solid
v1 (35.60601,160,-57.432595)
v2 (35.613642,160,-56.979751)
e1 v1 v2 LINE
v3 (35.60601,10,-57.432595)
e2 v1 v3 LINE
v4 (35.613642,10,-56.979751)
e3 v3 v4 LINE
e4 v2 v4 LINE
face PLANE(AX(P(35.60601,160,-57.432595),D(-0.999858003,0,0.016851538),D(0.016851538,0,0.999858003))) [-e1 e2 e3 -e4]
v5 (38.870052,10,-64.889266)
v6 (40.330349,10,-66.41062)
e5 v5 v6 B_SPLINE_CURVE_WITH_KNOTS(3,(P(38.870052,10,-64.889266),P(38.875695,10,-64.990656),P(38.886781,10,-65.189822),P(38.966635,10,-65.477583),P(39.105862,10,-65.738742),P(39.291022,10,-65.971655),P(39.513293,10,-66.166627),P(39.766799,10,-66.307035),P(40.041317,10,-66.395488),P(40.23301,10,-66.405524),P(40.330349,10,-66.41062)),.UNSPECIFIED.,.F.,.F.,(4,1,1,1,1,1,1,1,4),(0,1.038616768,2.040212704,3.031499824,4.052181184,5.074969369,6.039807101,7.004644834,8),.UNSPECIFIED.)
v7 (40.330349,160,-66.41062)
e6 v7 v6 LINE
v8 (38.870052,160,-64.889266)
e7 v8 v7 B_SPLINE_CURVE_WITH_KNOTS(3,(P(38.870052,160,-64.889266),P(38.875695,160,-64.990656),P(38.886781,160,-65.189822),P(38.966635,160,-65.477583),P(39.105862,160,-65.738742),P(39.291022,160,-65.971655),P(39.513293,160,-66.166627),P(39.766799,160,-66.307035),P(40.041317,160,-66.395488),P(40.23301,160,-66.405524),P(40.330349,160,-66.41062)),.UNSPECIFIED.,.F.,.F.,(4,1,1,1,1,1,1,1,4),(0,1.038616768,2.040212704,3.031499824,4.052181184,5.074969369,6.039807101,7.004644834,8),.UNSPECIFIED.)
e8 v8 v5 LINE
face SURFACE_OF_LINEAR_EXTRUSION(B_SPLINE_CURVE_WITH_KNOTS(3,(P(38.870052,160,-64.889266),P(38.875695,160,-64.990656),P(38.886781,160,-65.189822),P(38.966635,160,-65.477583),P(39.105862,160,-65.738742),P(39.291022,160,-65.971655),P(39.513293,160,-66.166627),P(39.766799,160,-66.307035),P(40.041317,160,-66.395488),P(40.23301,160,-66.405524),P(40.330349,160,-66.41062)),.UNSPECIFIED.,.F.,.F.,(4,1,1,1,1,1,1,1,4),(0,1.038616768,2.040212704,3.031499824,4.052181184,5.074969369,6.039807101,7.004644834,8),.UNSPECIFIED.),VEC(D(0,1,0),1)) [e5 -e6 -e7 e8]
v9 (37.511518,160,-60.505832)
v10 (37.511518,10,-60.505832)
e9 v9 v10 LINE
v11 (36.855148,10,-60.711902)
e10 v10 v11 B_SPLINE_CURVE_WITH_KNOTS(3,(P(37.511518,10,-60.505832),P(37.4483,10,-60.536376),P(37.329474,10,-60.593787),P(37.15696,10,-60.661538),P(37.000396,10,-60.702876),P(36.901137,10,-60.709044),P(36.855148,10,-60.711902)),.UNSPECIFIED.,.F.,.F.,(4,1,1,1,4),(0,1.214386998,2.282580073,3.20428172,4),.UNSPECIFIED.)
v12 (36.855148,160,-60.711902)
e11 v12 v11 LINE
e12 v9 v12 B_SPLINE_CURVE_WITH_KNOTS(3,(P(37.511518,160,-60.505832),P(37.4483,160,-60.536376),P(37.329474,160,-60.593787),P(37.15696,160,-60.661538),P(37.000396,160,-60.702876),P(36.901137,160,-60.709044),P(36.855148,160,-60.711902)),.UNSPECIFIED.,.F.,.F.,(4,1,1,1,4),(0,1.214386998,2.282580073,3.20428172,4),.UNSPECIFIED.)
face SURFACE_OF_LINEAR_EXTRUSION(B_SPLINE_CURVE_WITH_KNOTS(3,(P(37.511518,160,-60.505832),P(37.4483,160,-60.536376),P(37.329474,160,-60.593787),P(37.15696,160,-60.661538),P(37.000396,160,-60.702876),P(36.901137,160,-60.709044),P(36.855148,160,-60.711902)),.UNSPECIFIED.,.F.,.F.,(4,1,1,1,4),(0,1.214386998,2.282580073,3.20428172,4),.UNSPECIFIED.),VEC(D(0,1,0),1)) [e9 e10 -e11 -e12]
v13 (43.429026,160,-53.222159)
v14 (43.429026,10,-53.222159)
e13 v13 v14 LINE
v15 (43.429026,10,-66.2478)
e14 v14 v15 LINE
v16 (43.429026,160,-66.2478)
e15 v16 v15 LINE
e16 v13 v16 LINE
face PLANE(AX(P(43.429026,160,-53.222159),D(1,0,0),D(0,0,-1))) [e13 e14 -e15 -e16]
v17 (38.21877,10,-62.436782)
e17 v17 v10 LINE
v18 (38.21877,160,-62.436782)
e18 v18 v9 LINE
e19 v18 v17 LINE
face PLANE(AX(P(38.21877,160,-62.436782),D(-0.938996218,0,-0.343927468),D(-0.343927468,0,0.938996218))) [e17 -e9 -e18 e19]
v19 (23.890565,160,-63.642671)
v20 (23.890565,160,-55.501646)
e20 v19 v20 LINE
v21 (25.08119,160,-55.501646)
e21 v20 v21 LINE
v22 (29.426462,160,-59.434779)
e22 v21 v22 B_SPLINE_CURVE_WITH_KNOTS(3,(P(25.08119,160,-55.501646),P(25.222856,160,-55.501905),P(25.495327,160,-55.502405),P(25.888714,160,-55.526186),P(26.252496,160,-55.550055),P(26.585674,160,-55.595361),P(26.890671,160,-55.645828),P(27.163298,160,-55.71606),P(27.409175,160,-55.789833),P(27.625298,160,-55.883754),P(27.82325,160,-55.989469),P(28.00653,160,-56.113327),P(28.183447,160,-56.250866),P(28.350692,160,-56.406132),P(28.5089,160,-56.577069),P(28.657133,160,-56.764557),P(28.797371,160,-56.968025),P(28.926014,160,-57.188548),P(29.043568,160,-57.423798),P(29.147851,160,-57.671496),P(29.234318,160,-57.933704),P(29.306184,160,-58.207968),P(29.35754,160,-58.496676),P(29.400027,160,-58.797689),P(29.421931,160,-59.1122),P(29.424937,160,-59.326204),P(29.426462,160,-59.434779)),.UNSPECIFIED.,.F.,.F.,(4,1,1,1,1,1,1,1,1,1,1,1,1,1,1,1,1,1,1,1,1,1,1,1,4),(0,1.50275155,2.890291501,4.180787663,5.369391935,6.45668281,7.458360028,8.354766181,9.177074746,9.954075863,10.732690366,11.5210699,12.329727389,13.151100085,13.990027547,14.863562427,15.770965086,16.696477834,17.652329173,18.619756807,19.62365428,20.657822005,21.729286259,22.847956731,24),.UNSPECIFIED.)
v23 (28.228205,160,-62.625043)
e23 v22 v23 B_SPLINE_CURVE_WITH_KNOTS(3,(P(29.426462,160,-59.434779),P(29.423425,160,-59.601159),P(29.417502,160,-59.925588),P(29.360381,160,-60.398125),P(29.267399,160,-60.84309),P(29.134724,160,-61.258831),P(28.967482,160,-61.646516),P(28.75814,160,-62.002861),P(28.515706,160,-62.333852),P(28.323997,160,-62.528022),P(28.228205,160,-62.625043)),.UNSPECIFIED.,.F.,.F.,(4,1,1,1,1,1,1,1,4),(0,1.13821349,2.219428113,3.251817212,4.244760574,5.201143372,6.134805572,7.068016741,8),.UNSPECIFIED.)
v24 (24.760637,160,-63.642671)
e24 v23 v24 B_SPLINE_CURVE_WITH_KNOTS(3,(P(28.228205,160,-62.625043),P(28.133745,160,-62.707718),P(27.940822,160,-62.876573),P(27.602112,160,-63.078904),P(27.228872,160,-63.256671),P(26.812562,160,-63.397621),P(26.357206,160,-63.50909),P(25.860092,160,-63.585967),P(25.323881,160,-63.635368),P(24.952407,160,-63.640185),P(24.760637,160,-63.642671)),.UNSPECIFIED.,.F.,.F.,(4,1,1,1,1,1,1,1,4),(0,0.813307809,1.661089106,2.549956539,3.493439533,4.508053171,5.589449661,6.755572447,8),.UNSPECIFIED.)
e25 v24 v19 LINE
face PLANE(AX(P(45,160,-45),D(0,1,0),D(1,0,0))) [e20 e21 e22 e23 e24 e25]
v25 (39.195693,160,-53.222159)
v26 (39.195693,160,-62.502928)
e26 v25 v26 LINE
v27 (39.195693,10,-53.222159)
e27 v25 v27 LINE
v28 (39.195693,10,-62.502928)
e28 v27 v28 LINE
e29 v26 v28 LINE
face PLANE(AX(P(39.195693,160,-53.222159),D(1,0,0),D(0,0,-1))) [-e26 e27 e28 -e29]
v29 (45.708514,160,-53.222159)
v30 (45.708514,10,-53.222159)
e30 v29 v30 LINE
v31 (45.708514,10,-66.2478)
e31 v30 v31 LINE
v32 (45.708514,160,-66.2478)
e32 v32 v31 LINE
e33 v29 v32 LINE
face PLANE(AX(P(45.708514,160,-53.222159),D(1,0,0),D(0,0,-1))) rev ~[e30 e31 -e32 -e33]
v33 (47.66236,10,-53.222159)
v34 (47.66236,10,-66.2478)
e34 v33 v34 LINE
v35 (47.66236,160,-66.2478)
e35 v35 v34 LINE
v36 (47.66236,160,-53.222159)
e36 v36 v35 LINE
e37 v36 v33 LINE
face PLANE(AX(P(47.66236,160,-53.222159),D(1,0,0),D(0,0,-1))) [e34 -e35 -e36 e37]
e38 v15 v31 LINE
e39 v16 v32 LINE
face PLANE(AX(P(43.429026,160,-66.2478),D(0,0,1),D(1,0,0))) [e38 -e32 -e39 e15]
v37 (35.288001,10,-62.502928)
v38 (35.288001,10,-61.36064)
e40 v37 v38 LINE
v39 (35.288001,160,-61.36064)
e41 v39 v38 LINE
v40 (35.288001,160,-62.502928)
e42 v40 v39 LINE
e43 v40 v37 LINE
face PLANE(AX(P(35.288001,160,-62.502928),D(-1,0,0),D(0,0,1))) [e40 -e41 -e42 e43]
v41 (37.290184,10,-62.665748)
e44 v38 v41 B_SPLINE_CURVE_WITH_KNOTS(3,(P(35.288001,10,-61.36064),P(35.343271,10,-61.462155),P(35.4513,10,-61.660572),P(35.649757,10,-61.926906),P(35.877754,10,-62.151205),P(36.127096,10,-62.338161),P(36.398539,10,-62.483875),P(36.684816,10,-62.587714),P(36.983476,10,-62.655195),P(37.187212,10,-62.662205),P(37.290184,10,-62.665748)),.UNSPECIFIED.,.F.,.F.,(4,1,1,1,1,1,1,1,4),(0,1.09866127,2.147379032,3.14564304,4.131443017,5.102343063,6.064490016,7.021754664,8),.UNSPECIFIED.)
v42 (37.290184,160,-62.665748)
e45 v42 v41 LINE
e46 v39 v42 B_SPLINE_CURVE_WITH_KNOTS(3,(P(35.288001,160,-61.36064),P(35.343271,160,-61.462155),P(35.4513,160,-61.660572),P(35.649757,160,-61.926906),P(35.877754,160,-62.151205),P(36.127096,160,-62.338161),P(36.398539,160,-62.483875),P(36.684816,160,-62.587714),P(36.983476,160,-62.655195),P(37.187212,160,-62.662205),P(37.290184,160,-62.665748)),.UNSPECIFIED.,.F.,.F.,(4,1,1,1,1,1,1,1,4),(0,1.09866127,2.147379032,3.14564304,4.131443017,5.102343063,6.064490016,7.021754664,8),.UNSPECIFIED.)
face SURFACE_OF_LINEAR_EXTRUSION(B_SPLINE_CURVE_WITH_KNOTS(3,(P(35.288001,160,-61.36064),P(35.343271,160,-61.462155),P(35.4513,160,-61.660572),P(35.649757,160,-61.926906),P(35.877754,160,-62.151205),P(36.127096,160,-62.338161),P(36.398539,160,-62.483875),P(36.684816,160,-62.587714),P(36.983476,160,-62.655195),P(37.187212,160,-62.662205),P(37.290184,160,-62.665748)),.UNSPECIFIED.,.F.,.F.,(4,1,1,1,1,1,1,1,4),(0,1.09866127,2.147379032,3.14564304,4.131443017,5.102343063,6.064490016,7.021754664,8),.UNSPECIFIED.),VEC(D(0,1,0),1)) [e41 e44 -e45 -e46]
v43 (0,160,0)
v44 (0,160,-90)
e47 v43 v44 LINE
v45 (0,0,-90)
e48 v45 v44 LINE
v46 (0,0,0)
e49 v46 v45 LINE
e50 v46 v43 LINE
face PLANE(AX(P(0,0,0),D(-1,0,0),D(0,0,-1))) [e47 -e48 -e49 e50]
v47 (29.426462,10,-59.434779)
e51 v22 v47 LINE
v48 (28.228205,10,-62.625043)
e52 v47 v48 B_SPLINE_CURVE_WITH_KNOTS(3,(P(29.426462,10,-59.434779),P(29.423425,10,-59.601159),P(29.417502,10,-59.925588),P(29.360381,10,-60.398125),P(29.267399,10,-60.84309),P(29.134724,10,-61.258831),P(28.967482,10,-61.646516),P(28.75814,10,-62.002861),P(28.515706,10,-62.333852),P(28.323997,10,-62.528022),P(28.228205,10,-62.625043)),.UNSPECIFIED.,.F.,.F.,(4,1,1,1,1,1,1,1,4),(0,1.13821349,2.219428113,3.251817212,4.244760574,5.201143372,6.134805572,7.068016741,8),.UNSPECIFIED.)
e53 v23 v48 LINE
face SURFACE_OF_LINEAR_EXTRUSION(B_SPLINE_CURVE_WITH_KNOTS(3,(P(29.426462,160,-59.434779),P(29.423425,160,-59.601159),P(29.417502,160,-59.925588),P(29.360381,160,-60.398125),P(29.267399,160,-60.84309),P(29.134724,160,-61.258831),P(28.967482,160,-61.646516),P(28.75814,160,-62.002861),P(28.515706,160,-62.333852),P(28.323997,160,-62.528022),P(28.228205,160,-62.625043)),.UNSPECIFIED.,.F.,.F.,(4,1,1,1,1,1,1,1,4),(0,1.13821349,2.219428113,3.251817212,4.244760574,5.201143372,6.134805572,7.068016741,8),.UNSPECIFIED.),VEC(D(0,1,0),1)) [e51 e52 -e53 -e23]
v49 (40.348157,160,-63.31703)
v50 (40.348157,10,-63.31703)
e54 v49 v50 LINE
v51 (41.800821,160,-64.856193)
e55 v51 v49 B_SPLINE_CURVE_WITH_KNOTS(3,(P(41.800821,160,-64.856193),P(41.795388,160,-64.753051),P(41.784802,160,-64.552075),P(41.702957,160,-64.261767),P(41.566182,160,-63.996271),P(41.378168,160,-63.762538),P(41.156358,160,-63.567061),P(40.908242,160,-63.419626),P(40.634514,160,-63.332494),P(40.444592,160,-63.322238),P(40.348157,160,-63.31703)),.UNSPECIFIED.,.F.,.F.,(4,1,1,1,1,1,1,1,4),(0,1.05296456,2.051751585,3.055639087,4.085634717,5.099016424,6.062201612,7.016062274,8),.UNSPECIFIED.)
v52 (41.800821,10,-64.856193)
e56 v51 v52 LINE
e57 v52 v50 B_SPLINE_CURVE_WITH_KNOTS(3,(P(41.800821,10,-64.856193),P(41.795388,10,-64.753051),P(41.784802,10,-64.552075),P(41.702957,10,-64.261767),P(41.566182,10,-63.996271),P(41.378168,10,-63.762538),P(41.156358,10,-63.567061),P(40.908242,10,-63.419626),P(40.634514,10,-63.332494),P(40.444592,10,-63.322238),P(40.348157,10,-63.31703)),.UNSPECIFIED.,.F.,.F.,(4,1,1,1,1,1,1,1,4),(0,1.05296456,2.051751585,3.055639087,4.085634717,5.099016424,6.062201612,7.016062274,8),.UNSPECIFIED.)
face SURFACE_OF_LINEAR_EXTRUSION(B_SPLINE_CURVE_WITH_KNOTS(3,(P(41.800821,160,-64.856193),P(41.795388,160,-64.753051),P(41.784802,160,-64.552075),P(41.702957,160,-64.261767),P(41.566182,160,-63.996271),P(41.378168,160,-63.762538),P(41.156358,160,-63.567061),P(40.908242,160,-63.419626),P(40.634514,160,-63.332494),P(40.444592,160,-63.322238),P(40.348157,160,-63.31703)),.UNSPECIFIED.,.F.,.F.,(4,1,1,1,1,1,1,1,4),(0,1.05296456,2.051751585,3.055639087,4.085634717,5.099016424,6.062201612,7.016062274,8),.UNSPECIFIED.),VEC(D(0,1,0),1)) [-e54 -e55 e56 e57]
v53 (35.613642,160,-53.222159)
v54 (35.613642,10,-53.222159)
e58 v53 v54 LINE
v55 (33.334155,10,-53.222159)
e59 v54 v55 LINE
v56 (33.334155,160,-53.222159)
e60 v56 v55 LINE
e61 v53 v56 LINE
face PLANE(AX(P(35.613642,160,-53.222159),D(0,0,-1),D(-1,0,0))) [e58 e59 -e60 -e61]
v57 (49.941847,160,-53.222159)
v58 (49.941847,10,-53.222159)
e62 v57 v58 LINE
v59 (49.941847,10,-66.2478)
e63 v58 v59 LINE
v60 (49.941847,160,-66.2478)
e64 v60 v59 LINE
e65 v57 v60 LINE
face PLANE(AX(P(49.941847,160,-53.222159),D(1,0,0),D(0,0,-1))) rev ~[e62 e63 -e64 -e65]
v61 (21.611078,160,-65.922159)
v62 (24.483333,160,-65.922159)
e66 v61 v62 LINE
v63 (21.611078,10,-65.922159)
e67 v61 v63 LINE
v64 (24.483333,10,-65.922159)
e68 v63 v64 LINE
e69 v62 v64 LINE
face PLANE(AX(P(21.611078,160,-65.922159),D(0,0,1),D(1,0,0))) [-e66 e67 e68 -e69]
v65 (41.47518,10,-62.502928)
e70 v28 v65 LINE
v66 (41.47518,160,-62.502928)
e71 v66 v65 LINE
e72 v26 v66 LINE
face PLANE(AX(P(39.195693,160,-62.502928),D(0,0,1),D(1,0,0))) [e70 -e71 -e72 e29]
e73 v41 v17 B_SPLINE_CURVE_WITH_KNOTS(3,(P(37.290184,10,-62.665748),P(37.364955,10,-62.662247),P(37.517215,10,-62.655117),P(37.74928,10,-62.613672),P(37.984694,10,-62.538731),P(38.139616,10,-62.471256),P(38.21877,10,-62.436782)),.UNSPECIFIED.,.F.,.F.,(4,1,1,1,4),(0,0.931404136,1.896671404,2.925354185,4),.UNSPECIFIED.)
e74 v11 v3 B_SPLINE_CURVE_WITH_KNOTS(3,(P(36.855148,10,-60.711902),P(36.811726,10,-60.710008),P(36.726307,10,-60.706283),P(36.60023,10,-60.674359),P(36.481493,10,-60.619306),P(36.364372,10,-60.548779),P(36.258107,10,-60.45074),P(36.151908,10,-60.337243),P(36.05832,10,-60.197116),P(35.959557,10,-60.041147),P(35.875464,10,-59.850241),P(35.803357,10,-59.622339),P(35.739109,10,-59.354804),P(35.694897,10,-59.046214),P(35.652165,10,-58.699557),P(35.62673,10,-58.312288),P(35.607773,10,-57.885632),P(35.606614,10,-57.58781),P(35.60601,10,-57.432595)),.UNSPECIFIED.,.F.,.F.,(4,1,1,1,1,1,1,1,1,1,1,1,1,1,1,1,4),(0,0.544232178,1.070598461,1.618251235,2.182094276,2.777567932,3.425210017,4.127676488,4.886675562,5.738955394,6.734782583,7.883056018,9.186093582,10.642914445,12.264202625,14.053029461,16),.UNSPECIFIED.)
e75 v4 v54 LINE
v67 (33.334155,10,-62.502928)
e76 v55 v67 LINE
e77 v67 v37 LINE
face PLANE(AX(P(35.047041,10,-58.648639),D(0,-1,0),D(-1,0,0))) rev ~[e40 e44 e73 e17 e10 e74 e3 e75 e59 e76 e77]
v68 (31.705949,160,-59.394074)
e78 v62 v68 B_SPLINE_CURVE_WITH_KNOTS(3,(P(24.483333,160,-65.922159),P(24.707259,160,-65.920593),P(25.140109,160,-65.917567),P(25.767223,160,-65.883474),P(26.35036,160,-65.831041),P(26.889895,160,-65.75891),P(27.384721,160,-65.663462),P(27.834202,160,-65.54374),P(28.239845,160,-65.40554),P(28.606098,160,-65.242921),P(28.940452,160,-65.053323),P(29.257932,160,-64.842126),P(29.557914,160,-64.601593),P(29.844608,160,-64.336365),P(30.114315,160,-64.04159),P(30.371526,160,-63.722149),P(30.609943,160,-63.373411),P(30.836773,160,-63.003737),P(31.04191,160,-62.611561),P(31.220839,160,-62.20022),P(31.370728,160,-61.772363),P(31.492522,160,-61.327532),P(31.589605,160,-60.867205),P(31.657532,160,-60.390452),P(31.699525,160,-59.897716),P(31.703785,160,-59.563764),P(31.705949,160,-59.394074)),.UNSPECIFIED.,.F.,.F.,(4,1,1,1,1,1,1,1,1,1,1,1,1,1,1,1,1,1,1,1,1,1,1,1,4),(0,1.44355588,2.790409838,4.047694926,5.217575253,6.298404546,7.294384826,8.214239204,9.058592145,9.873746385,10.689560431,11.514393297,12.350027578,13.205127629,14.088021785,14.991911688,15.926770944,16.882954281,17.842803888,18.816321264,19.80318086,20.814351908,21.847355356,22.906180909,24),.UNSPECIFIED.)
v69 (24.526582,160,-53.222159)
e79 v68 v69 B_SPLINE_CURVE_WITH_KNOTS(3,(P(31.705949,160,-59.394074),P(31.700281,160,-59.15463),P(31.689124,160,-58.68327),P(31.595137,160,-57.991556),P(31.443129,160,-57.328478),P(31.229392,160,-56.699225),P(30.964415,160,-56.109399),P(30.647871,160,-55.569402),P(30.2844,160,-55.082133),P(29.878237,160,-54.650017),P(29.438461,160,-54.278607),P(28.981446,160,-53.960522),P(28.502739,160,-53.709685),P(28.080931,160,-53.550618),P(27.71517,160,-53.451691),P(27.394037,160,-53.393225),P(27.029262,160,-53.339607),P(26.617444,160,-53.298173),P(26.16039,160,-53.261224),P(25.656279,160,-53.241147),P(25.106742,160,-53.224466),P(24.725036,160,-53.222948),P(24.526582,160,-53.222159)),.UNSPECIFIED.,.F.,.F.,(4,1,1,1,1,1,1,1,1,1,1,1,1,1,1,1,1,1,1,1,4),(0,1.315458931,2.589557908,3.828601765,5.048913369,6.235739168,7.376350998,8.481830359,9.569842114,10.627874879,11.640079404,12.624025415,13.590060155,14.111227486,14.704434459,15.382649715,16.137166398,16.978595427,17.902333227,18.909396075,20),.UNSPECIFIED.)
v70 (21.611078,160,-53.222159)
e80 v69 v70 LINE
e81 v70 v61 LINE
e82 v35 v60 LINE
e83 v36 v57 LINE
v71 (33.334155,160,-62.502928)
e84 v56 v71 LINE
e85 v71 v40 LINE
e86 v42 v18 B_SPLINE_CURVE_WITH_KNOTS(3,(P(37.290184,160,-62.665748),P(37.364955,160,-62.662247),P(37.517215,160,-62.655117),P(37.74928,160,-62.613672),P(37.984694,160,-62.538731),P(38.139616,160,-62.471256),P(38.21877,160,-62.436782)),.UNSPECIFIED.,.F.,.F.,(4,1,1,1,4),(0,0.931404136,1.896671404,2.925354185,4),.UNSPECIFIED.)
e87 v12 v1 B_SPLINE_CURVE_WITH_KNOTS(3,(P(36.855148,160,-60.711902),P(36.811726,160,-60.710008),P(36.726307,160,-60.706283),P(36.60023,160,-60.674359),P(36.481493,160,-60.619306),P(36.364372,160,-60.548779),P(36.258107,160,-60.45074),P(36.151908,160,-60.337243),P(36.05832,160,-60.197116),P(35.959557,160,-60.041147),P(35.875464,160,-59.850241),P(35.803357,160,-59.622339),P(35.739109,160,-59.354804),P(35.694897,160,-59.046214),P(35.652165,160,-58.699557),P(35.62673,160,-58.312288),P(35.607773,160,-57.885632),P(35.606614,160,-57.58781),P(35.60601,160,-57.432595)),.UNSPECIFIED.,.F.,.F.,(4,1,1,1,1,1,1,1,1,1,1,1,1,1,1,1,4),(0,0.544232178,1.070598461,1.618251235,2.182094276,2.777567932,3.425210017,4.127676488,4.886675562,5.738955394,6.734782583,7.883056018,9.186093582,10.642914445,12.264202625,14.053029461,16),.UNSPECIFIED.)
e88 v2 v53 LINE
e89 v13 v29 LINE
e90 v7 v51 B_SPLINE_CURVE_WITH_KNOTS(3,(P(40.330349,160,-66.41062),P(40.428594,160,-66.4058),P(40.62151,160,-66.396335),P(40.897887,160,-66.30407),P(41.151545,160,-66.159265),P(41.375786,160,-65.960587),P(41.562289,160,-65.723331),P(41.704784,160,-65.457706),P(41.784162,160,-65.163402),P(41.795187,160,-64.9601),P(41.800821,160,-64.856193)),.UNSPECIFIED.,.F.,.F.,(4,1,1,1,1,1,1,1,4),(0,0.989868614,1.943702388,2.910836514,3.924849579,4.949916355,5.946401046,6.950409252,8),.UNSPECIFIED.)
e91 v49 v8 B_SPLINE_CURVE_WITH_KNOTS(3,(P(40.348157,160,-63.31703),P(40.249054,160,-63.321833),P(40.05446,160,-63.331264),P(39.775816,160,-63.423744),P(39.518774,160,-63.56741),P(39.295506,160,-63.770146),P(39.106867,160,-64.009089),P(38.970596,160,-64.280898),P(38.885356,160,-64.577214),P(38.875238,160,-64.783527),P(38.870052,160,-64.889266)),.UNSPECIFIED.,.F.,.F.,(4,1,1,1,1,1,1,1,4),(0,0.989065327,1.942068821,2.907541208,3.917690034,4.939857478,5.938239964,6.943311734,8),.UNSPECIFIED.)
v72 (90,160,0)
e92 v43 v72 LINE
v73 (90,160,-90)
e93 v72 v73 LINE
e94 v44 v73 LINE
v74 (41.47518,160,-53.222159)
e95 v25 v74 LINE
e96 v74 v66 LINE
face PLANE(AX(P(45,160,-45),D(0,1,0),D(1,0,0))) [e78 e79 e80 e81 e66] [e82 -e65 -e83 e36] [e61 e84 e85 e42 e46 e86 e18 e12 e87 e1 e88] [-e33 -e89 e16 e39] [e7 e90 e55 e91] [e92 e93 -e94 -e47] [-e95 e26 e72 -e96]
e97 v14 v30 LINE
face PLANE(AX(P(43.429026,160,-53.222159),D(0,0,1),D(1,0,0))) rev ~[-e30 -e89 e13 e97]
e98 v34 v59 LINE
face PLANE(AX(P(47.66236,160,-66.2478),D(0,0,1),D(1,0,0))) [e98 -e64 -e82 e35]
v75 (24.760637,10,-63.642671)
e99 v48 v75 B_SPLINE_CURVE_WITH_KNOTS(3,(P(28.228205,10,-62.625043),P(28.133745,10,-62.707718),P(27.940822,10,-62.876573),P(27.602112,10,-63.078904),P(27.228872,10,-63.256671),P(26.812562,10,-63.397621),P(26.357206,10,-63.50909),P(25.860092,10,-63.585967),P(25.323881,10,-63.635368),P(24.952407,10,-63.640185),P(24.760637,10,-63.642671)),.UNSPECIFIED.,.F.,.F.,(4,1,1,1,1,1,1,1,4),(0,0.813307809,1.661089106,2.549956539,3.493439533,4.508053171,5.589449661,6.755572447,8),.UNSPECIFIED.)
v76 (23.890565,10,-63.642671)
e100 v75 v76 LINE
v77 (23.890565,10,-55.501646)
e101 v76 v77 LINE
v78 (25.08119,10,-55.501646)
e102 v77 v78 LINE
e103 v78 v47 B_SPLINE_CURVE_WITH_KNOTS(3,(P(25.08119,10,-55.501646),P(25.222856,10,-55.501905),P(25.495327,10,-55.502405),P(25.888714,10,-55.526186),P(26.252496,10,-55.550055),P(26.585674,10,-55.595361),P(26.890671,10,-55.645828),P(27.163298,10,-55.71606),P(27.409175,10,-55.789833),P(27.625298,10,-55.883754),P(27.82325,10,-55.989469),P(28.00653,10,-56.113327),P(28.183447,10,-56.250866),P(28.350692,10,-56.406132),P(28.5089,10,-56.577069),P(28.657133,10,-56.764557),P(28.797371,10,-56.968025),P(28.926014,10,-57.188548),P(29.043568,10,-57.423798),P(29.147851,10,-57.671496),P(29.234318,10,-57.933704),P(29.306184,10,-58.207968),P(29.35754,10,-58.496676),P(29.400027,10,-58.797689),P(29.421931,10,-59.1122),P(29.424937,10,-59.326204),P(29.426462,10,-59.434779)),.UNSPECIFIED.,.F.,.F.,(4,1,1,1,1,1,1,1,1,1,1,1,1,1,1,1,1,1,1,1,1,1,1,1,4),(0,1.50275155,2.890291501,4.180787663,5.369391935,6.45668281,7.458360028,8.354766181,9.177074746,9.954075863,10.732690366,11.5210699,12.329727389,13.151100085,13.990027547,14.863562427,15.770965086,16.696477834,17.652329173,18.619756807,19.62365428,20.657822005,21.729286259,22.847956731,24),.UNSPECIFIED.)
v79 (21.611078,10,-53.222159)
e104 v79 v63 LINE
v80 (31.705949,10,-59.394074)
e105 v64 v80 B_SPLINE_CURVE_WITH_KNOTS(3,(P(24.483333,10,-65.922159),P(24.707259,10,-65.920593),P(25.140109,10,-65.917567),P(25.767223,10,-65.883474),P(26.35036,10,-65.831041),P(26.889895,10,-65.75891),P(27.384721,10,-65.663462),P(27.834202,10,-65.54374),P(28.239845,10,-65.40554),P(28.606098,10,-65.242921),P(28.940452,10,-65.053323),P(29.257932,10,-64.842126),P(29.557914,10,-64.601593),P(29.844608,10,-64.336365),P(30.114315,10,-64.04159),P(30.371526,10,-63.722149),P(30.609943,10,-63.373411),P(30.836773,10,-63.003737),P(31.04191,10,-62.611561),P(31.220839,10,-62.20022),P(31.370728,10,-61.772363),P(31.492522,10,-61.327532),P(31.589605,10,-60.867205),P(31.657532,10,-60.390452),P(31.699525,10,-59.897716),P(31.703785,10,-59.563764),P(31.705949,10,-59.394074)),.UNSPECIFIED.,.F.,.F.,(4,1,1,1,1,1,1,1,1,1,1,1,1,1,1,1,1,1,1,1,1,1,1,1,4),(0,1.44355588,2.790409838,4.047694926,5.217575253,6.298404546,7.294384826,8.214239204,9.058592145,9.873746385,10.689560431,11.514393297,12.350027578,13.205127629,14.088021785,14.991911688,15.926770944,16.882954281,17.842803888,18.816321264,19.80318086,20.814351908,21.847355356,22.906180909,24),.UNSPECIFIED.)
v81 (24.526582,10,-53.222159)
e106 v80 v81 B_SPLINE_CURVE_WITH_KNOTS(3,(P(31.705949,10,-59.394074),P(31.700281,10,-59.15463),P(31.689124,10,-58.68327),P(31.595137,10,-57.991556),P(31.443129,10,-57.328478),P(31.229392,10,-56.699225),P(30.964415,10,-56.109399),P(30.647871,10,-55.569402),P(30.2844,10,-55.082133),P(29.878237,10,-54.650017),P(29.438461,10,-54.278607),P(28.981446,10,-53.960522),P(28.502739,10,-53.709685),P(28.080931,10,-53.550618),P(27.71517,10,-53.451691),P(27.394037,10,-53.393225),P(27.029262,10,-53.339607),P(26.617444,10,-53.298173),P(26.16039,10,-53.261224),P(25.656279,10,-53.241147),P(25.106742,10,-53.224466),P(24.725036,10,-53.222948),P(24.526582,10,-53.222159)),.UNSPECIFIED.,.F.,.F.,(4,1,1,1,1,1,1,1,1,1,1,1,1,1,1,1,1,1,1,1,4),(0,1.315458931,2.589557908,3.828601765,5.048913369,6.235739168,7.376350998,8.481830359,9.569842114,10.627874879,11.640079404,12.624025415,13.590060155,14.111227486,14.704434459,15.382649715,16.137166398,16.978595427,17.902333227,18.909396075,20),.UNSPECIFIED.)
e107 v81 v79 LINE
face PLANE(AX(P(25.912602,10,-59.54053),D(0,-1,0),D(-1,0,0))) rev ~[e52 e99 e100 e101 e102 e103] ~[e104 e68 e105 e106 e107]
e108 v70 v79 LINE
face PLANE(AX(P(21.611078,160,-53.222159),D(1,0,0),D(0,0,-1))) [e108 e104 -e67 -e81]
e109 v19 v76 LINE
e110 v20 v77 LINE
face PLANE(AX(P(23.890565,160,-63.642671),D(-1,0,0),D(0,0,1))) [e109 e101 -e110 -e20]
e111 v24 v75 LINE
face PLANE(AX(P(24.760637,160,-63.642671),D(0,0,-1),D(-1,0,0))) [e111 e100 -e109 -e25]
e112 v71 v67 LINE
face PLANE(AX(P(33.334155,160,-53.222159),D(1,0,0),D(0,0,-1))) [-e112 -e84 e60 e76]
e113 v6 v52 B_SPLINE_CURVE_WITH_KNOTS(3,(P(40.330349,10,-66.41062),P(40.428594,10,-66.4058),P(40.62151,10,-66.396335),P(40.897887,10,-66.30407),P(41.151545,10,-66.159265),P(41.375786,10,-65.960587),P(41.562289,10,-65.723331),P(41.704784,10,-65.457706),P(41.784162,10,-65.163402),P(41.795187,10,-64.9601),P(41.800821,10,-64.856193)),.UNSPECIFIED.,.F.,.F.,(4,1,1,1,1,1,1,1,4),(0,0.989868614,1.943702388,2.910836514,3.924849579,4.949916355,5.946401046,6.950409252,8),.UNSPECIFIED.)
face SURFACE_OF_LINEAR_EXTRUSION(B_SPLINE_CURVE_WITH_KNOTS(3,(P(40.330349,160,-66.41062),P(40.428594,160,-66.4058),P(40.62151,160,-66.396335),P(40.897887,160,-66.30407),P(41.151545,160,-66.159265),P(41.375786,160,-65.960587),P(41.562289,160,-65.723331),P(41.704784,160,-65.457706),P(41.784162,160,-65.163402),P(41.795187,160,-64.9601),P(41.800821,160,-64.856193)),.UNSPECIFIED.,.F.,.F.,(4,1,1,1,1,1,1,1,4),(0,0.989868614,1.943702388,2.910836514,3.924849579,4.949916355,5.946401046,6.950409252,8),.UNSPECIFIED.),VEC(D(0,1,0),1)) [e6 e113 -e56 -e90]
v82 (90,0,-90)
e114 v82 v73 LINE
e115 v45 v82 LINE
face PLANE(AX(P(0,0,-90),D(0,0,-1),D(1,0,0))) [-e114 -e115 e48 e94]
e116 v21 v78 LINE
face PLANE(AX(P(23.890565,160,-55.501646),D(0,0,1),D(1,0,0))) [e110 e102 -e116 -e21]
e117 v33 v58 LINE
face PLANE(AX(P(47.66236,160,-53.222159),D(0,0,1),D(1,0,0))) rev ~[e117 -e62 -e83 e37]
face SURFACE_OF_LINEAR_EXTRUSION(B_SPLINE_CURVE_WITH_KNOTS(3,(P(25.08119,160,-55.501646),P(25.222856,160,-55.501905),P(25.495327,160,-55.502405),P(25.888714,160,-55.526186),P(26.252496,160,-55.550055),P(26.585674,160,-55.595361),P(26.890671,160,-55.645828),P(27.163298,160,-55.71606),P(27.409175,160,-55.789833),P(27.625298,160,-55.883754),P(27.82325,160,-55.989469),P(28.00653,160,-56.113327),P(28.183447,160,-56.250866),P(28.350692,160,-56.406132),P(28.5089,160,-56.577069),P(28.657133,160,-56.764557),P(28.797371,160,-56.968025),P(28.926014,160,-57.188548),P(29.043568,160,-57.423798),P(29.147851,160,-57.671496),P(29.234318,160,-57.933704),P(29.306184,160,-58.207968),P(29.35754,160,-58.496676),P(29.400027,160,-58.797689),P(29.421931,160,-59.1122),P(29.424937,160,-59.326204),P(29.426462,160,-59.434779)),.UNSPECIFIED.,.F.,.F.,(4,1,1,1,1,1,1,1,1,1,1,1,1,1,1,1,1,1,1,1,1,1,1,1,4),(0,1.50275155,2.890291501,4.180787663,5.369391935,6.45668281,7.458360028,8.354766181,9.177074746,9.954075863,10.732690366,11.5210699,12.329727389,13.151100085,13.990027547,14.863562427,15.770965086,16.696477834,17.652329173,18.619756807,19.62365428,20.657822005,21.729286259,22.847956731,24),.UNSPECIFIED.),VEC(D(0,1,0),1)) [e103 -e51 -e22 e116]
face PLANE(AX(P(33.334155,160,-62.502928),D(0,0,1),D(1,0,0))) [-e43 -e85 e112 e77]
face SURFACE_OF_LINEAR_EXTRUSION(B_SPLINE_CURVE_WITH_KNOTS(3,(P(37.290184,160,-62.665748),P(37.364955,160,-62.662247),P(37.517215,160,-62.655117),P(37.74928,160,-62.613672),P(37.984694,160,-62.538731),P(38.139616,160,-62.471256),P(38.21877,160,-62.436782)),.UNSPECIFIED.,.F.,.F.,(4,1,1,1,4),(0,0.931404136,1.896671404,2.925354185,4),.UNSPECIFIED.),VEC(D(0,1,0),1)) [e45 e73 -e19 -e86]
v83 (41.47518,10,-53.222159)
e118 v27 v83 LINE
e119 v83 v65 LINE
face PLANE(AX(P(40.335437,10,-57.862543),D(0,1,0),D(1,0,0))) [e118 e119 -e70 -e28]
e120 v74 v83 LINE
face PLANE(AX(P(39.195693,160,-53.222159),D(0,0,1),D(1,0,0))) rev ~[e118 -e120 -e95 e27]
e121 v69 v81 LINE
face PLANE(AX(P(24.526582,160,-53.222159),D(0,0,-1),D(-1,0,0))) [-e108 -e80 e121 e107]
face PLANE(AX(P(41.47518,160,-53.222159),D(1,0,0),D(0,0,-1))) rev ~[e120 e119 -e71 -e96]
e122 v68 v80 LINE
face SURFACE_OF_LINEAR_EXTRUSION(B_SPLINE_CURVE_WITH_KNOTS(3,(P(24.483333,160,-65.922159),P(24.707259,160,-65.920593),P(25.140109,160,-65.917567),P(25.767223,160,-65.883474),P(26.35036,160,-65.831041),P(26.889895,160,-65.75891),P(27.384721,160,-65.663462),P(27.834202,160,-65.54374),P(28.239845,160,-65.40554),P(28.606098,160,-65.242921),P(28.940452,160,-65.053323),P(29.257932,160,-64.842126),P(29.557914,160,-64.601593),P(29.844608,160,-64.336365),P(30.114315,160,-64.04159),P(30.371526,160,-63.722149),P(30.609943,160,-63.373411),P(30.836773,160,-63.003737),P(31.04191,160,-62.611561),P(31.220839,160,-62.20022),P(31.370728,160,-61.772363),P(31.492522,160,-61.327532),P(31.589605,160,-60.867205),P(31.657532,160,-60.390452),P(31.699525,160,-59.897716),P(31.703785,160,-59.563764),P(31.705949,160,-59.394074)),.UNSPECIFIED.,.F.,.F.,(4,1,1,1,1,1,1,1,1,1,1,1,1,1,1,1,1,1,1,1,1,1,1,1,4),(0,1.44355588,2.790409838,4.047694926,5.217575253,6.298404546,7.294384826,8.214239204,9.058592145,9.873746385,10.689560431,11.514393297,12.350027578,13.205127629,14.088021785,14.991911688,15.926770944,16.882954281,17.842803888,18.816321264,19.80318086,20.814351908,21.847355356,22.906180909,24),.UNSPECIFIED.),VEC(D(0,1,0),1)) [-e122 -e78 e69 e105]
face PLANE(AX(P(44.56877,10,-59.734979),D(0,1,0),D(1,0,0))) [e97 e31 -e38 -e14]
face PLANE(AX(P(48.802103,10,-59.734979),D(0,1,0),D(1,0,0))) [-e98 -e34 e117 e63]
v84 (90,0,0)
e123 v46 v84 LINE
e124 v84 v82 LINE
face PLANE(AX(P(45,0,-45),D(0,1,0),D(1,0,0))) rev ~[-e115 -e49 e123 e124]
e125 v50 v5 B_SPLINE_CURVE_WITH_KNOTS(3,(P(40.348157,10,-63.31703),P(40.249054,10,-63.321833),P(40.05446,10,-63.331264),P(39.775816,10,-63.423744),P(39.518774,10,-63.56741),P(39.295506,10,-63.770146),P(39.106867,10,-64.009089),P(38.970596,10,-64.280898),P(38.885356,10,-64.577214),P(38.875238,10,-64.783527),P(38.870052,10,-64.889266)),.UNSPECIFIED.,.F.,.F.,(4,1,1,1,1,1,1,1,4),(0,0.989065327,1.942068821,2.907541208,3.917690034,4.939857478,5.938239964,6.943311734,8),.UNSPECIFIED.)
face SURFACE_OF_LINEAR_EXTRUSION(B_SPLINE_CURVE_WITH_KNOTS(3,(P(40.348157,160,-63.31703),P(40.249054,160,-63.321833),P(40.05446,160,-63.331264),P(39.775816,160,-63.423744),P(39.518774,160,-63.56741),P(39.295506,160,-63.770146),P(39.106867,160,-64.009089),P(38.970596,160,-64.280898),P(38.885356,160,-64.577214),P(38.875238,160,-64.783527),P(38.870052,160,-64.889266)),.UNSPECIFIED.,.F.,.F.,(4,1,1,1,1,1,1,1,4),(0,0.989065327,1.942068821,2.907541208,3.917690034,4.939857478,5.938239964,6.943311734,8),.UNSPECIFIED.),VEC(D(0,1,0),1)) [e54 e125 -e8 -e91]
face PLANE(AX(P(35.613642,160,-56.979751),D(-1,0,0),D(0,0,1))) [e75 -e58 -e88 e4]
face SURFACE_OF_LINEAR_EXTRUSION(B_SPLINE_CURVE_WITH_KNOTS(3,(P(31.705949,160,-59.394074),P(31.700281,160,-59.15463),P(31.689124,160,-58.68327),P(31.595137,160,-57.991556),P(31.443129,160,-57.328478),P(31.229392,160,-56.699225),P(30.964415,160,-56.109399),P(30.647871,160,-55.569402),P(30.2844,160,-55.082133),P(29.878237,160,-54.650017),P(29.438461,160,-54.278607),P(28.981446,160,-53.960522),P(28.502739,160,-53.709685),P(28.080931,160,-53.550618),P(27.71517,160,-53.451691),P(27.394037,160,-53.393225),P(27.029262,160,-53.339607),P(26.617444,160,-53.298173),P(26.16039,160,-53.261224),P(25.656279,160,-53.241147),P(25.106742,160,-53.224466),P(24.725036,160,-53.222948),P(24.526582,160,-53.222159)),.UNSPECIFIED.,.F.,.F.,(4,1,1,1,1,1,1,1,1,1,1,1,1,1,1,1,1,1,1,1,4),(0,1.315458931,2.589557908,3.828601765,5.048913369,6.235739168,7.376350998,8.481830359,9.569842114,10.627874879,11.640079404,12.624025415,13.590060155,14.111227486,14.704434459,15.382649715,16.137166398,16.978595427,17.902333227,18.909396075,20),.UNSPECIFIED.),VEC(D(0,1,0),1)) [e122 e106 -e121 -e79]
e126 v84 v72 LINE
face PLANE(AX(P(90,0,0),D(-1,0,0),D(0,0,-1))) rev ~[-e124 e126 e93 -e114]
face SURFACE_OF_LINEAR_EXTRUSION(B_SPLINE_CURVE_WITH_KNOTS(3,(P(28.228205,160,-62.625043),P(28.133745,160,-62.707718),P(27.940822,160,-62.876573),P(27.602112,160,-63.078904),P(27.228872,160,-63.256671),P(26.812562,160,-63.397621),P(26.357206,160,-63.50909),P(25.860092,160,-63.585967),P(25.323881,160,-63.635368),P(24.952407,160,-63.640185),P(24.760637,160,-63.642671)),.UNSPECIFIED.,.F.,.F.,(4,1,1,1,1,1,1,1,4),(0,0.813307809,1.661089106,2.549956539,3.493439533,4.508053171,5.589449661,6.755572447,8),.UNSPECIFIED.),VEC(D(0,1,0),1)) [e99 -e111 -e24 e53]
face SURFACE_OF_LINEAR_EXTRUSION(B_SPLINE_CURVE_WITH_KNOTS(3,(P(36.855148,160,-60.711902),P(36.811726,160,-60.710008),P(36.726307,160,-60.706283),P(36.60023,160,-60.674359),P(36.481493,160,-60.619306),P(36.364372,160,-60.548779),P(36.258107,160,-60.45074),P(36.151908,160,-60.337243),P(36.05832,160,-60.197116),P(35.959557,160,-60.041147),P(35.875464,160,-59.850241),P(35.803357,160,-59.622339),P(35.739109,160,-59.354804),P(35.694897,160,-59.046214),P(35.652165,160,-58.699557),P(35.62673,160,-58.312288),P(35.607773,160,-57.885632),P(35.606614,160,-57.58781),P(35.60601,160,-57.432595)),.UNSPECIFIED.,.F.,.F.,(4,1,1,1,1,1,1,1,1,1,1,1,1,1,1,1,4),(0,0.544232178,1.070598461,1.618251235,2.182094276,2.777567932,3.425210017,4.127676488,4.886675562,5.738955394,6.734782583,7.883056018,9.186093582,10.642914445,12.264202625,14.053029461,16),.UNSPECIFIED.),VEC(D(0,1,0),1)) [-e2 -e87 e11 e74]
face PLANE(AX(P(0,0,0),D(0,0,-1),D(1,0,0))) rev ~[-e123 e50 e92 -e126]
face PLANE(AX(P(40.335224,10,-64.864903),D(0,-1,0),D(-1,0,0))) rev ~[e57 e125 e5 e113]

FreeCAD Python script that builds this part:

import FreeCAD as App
import Part
import Sketcher

V = App.Vector


def add_polygon(sketch, points):
    """Adds a closed chain of lines whose ends are joined by coincident constraints."""
    first, n = sketch.GeometryCount, len(points)
    for a, b in zip(points, points[1:] + points[:1]):
        sketch.addGeometry(Part.LineSegment(App.Vector(*a, 0), App.Vector(*b, 0)), False)
    for i in range(n):
        sketch.addConstraint(Sketcher.Constraint("Coincident", first + i, 2, first + (i + 1) % n, 1))

doc = App.newDocument("Part")
body = doc.addObject("PartDesign::Body", "Body")

# Sketch on XZ plane
sketch1 = body.newObject("Sketcher::SketchObject", "Sketch")
sketch1.AttachmentSupport = (doc.getObject("XZ_Plane"), [""])
sketch1.MapMode = "FlatFace"
add_polygon(sketch1, [(0, -90), (0, 0), (90, 0), (90, -90)])  # lines 0-3
sketch1.addConstraint(Sketcher.Constraint("Vertical", 0))
sketch1.addConstraint(Sketcher.Constraint("Horizontal", 1))
sketch1.addConstraint(Sketcher.Constraint("Vertical", 2))
sketch1.addConstraint(Sketcher.Constraint("Horizontal", 3))
sketch1.addConstraint(Sketcher.Constraint("Coincident", 0, 2, -1, 1))
sketch1.addConstraint(Sketcher.Constraint("Equal", 3, 0))
sketch1.addConstraint(Sketcher.Constraint("DistanceX", 1, 1, 1, 2, 90.0))
pad1 = body.newObject("PartDesign::Pad", "Pad")
pad1.Profile = sketch1
pad1.Length = 160
pad1.Reversed = True

# Sketch on XZ plane
sketch2 = body.newObject("Sketcher::SketchObject", "Sketch001")
sketch2.AttachmentSupport = (doc.getObject("XZ_Plane"), [""])
sketch2.MapMode = "FlatFace"
sketch2.AttachmentOffset = App.Placement(V(0, 0, -160), App.Rotation())
sketch2.addGeometry(Part.LineSegment(V(24.483333, -65.922159, 0), V(21.611078, -65.922159, 0)), False)  # 0
sketch2.addGeometry(Part.LineSegment(V(21.611078, -65.922159, 0), V(21.611078, -53.222159, 0)), False)  # 1
sketch2.addGeometry(Part.LineSegment(V(21.611078, -53.222159, 0), V(24.526582, -53.222159, 0)), False)  # 2
sketch2.addGeometry(Part.BSplineCurve([V(31.705949, -59.394074, 0), V(31.700281, -59.15463, 0), V(31.689124, -58.68327, 0), V(31.595137, -57.991556, 0), V(31.443129, -57.328478, 0), V(31.229392, -56.699225, 0), V(30.964415, -56.109399, 0), V(30.647871, -55.569402, 0), V(30.2844, -55.082133, 0), V(29.878237, -54.650017, 0), V(29.438461, -54.278607, 0), V(28.981446, -53.960522, 0), V(28.502739, -53.709685, 0), V(28.080931, -53.550618, 0), V(27.71517, -53.451691, 0), V(27.394037, -53.393225, 0), V(27.029262, -53.339607, 0), V(26.617444, -53.298173, 0), V(26.16039, -53.261224, 0), V(25.656279, -53.241147, 0), V(25.106742, -53.224466, 0), V(24.725036, -53.222948, 0), V(24.526582, -53.222159, 0)], [4, 1, 1, 1, 1, 1, 1, 1, 1, 1, 1, 1, 1, 1, 1, 1, 1, 1, 1, 1, 4], [0, 1.315458931, 2.589557908, 3.828601765, 5.048913369, 6.235739168, 7.376350998, 8.481830359, 9.569842114, 10.627874879, 11.640079404, 12.624025415, 13.590060155, 14.111227486, 14.704434459, 15.382649715, 16.137166398, 16.978595427, 17.902333227, 18.909396075, 20], False, 3, [1, 1, 1, 1, 1, 1, 1, 1, 1, 1, 1, 1, 1, 1, 1, 1, 1, 1, 1, 1, 1, 1, 1], False), False)  # 3
sketch2.addGeometry(Part.BSplineCurve([V(24.483333, -65.922159, 0), V(24.707259, -65.920593, 0), V(25.140109, -65.917567, 0), V(25.767223, -65.883474, 0), V(26.35036, -65.831041, 0), V(26.889895, -65.75891, 0), V(27.384721, -65.663462, 0), V(27.834202, -65.54374, 0), V(28.239845, -65.40554, 0), V(28.606098, -65.242921, 0), V(28.940452, -65.053323, 0), V(29.257932, -64.842126, 0), V(29.557914, -64.601593, 0), V(29.844608, -64.336365, 0), V(30.114315, -64.04159, 0), V(30.371526, -63.722149, 0), V(30.609943, -63.373411, 0), V(30.836773, -63.003737, 0), V(31.04191, -62.611561, 0), V(31.220839, -62.20022, 0), V(31.370728, -61.772363, 0), V(31.492522, -61.327532, 0), V(31.589605, -60.867205, 0), V(31.657532, -60.390452, 0), V(31.699525, -59.897716, 0), V(31.703785, -59.563764, 0), V(31.705949, -59.394074, 0)], [4, 1, 1, 1, 1, 1, 1, 1, 1, 1, 1, 1, 1, 1, 1, 1, 1, 1, 1, 1, 1, 1, 1, 1, 4], [0, 1.44355588, 2.790409838, 4.047694926, 5.217575253, 6.298404546, 7.294384826, 8.214239204, 9.058592145, 9.873746385, 10.689560431, 11.514393297, 12.350027578, 13.205127629, 14.088021785, 14.991911688, 15.926770944, 16.882954281, 17.842803888, 18.816321264, 19.80318086, 20.814351908, 21.847355356, 22.906180909, 24], False, 3, [1, 1, 1, 1, 1, 1, 1, 1, 1, 1, 1, 1, 1, 1, 1, 1, 1, 1, 1, 1, 1, 1, 1, 1, 1, 1, 1], False), False)  # 4
sketch2.addGeometry(Part.LineSegment(V(23.890565, -63.642671, 0), V(24.760637, -63.642671, 0)), False)  # 5
sketch2.addGeometry(Part.BSplineCurve([V(28.228205, -62.625043, 0), V(28.133745, -62.707718, 0), V(27.940822, -62.876573, 0), V(27.602112, -63.078904, 0), V(27.228872, -63.256671, 0), V(26.812562, -63.397621, 0), V(26.357206, -63.50909, 0), V(25.860092, -63.585967, 0), V(25.323881, -63.635368, 0), V(24.952407, -63.640185, 0), V(24.760637, -63.642671, 0)], [4, 1, 1, 1, 1, 1, 1, 1, 4], [0, 0.813307809, 1.661089106, 2.549956539, 3.493439533, 4.508053171, 5.589449661, 6.755572447, 8], False, 3, [1, 1, 1, 1, 1, 1, 1, 1, 1, 1, 1], False), False)  # 6
sketch2.addGeometry(Part.BSplineCurve([V(29.426462, -59.434779, 0), V(29.423425, -59.601159, 0), V(29.417502, -59.925588, 0), V(29.360381, -60.398125, 0), V(29.267399, -60.84309, 0), V(29.134724, -61.258831, 0), V(28.967482, -61.646516, 0), V(28.75814, -62.002861, 0), V(28.515706, -62.333852, 0), V(28.323997, -62.528022, 0), V(28.228205, -62.625043, 0)], [4, 1, 1, 1, 1, 1, 1, 1, 4], [0, 1.13821349, 2.219428113, 3.251817212, 4.244760574, 5.201143372, 6.134805572, 7.068016741, 8], False, 3, [1, 1, 1, 1, 1, 1, 1, 1, 1, 1, 1], False), False)  # 7
sketch2.addGeometry(Part.BSplineCurve([V(25.08119, -55.501646, 0), V(25.222856, -55.501905, 0), V(25.495327, -55.502405, 0), V(25.888714, -55.526186, 0), V(26.252496, -55.550055, 0), V(26.585674, -55.595361, 0), V(26.890671, -55.645828, 0), V(27.163298, -55.71606, 0), V(27.409175, -55.789833, 0), V(27.625298, -55.883754, 0), V(27.82325, -55.989469, 0), V(28.00653, -56.113327, 0), V(28.183447, -56.250866, 0), V(28.350692, -56.406132, 0), V(28.5089, -56.577069, 0), V(28.657133, -56.764557, 0), V(28.797371, -56.968025, 0), V(28.926014, -57.188548, 0), V(29.043568, -57.423798, 0), V(29.147851, -57.671496, 0), V(29.234318, -57.933704, 0), V(29.306184, -58.207968, 0), V(29.35754, -58.496676, 0), V(29.400027, -58.797689, 0), V(29.421931, -59.1122, 0), V(29.424937, -59.326204, 0), V(29.426462, -59.434779, 0)], [4, 1, 1, 1, 1, 1, 1, 1, 1, 1, 1, 1, 1, 1, 1, 1, 1, 1, 1, 1, 1, 1, 1, 1, 4], [0, 1.50275155, 2.890291501, 4.180787663, 5.369391935, 6.45668281, 7.458360028, 8.354766181, 9.177074746, 9.954075863, 10.732690366, 11.5210699, 12.329727389, 13.151100085, 13.990027547, 14.863562427, 15.770965086, 16.696477834, 17.652329173, 18.619756807, 19.62365428, 20.657822005, 21.729286259, 22.847956731, 24], False, 3, [1, 1, 1, 1, 1, 1, 1, 1, 1, 1, 1, 1, 1, 1, 1, 1, 1, 1, 1, 1, 1, 1, 1, 1, 1, 1, 1], False), False)  # 8
sketch2.addGeometry(Part.LineSegment(V(25.08119, -55.501646, 0), V(23.890565, -55.501646, 0)), False)  # 9
sketch2.addGeometry(Part.LineSegment(V(23.890565, -55.501646, 0), V(23.890565, -63.642671, 0)), False)  # 10
sketch2.addGeometry(Part.LineSegment(V(35.288001, -62.502928, 0), V(33.334155, -62.502928, 0)), False)  # 11
sketch2.addGeometry(Part.LineSegment(V(33.334155, -62.502928, 0), V(33.334155, -53.222159, 0)), False)  # 12
sketch2.addGeometry(Part.LineSegment(V(33.334155, -53.222159, 0), V(35.613642, -53.222159, 0)), False)  # 13
sketch2.addGeometry(Part.LineSegment(V(35.613642, -53.222159, 0), V(35.613642, -56.979751, 0)), False)  # 14
sketch2.addGeometry(Part.LineSegment(V(35.613642, -56.979751, 0), V(35.60601, -57.432595, 0)), False)  # 15
sketch2.addGeometry(Part.BSplineCurve([V(36.855148, -60.711902, 0), V(36.811726, -60.710008, 0), V(36.726307, -60.706283, 0), V(36.60023, -60.674359, 0), V(36.481493, -60.619306, 0), V(36.364372, -60.548779, 0), V(36.258107, -60.45074, 0), V(36.151908, -60.337243, 0), V(36.05832, -60.197116, 0), V(35.959557, -60.041147, 0), V(35.875464, -59.850241, 0), V(35.803357, -59.622339, 0), V(35.739109, -59.354804, 0), V(35.694897, -59.046214, 0), V(35.652165, -58.699557, 0), V(35.62673, -58.312288, 0), V(35.607773, -57.885632, 0), V(35.606614, -57.58781, 0), V(35.60601, -57.432595, 0)], [4, 1, 1, 1, 1, 1, 1, 1, 1, 1, 1, 1, 1, 1, 1, 1, 4], [0, 0.544232178, 1.070598461, 1.618251235, 2.182094276, 2.777567932, 3.425210017, 4.127676488, 4.886675562, 5.738955394, 6.734782583, 7.883056018, 9.186093582, 10.642914445, 12.264202625, 14.053029461, 16], False, 3, [1, 1, 1, 1, 1, 1, 1, 1, 1, 1, 1, 1, 1, 1, 1, 1, 1, 1, 1], False), False)  # 16
sketch2.addGeometry(Part.BSplineCurve([V(37.511518, -60.505832, 0), V(37.4483, -60.536376, 0), V(37.329474, -60.593787, 0), V(37.15696, -60.661538, 0), V(37.000396, -60.702876, 0), V(36.901137, -60.709044, 0), V(36.855148, -60.711902, 0)], [4, 1, 1, 1, 4], [0, 1.214386998, 2.282580073, 3.20428172, 4], False, 3, [1, 1, 1, 1, 1, 1, 1], False), False)  # 17
sketch2.addGeometry(Part.LineSegment(V(37.511518, -60.505832, 0), V(38.21877, -62.436782, 0)), False)  # 18
sketch2.addGeometry(Part.BSplineCurve([V(37.290184, -62.665748, 0), V(37.364955, -62.662247, 0), V(37.517215, -62.655117, 0), V(37.74928, -62.613672, 0), V(37.984694, -62.538731, 0), V(38.139616, -62.471256, 0), V(38.21877, -62.436782, 0)], [4, 1, 1, 1, 4], [0, 0.931404136, 1.896671404, 2.925354185, 4], False, 3, [1, 1, 1, 1, 1, 1, 1], False), False)  # 19
sketch2.addGeometry(Part.BSplineCurve([V(35.288001, -61.36064, 0), V(35.343271, -61.462155, 0), V(35.4513, -61.660572, 0), V(35.649757, -61.926906, 0), V(35.877754, -62.151205, 0), V(36.127096, -62.338161, 0), V(36.398539, -62.483875, 0), V(36.684816, -62.587714, 0), V(36.983476, -62.655195, 0), V(37.187212, -62.662205, 0), V(37.290184, -62.665748, 0)], [4, 1, 1, 1, 1, 1, 1, 1, 4], [0, 1.09866127, 2.147379032, 3.14564304, 4.131443017, 5.102343063, 6.064490016, 7.021754664, 8], False, 3, [1, 1, 1, 1, 1, 1, 1, 1, 1, 1, 1], False), False)  # 20
sketch2.addGeometry(Part.LineSegment(V(35.288001, -61.36064, 0), V(35.288001, -62.502928, 0)), False)  # 21
sketch2.addGeometry(Part.BSplineCurve([V(40.330349, -66.41062, 0), V(40.428594, -66.4058, 0), V(40.62151, -66.396335, 0), V(40.897887, -66.30407, 0), V(41.151545, -66.159265, 0), V(41.375786, -65.960587, 0), V(41.562289, -65.723331, 0), V(41.704784, -65.457706, 0), V(41.784162, -65.163402, 0), V(41.795187, -64.9601, 0), V(41.800821, -64.856193, 0)], [4, 1, 1, 1, 1, 1, 1, 1, 4], [0, 0.989868614, 1.943702388, 2.910836514, 3.924849579, 4.949916355, 5.946401046, 6.950409252, 8], False, 3, [1, 1, 1, 1, 1, 1, 1, 1, 1, 1, 1], False), False)  # 22
sketch2.addGeometry(Part.BSplineCurve([V(38.870052, -64.889266, 0), V(38.875695, -64.990656, 0), V(38.886781, -65.189822, 0), V(38.966635, -65.477583, 0), V(39.105862, -65.738742, 0), V(39.291022, -65.971655, 0), V(39.513293, -66.166627, 0), V(39.766799, -66.307035, 0), V(40.041317, -66.395488, 0), V(40.23301, -66.405524, 0), V(40.330349, -66.41062, 0)], [4, 1, 1, 1, 1, 1, 1, 1, 4], [0, 1.038616768, 2.040212704, 3.031499824, 4.052181184, 5.074969369, 6.039807101, 7.004644834, 8], False, 3, [1, 1, 1, 1, 1, 1, 1, 1, 1, 1, 1], False), False)  # 23
sketch2.addGeometry(Part.BSplineCurve([V(40.348157, -63.31703, 0), V(40.249054, -63.321833, 0), V(40.05446, -63.331264, 0), V(39.775816, -63.423744, 0), V(39.518774, -63.56741, 0), V(39.295506, -63.770146, 0), V(39.106867, -64.009089, 0), V(38.970596, -64.280898, 0), V(38.885356, -64.577214, 0), V(38.875238, -64.783527, 0), V(38.870052, -64.889266, 0)], [4, 1, 1, 1, 1, 1, 1, 1, 4], [0, 0.989065327, 1.942068821, 2.907541208, 3.917690034, 4.939857478, 5.938239964, 6.943311734, 8], False, 3, [1, 1, 1, 1, 1, 1, 1, 1, 1, 1, 1], False), False)  # 24
sketch2.addGeometry(Part.BSplineCurve([V(41.800821, -64.856193, 0), V(41.795388, -64.753051, 0), V(41.784802, -64.552075, 0), V(41.702957, -64.261767, 0), V(41.566182, -63.996271, 0), V(41.378168, -63.762538, 0), V(41.156358, -63.567061, 0), V(40.908242, -63.419626, 0), V(40.634514, -63.332494, 0), V(40.444592, -63.322238, 0), V(40.348157, -63.31703, 0)], [4, 1, 1, 1, 1, 1, 1, 1, 4], [0, 1.05296456, 2.051751585, 3.055639087, 4.085634717, 5.099016424, 6.062201612, 7.016062274, 8], False, 3, [1, 1, 1, 1, 1, 1, 1, 1, 1, 1, 1], False), False)  # 25
add_polygon(sketch2, [(39.195693, -62.502928), (39.195693, -53.222159), (41.47518, -53.222159), (41.47518, -62.502928)])  # lines 26-29
add_polygon(sketch2, [(43.429026, -66.2478), (43.429026, -53.222159), (45.708514, -53.222159), (45.708514, -66.2478)])  # lines 30-33
add_polygon(sketch2, [(47.66236, -66.2478), (47.66236, -53.222159), (49.941847, -53.222159), (49.941847, -66.2478)])  # lines 34-37
sketch2.addConstraint(Sketcher.Constraint("Block", 3))
sketch2.addConstraint(Sketcher.Constraint("Block", 4))
sketch2.addConstraint(Sketcher.Constraint("Block", 6))
sketch2.addConstraint(Sketcher.Constraint("Block", 7))
sketch2.addConstraint(Sketcher.Constraint("Block", 8))
sketch2.addConstraint(Sketcher.Constraint("Block", 16))
sketch2.addConstraint(Sketcher.Constraint("Block", 17))
sketch2.addConstraint(Sketcher.Constraint("Block", 19))
sketch2.addConstraint(Sketcher.Constraint("Block", 20))
sketch2.addConstraint(Sketcher.Constraint("Block", 22))
sketch2.addConstraint(Sketcher.Constraint("Block", 23))
sketch2.addConstraint(Sketcher.Constraint("Block", 24))
sketch2.addConstraint(Sketcher.Constraint("Block", 25))
sketch2.addConstraint(Sketcher.Constraint("Coincident", 0, 2, 1, 1))
sketch2.addConstraint(Sketcher.Constraint("Coincident", 1, 2, 2, 1))
sketch2.addConstraint(Sketcher.Constraint("Coincident", 2, 2, 3, 2))
sketch2.addConstraint(Sketcher.Constraint("Coincident", 4, 1, 0, 1))
sketch2.addConstraint(Sketcher.Constraint("Coincident", 5, 2, 6, 2))
sketch2.addConstraint(Sketcher.Constraint("Coincident", 8, 1, 9, 1))
sketch2.addConstraint(Sketcher.Constraint("Coincident", 9, 2, 10, 1))
sketch2.addConstraint(Sketcher.Constraint("Coincident", 10, 2, 5, 1))
sketch2.addConstraint(Sketcher.Constraint("Coincident", 11, 2, 12, 1))
sketch2.addConstraint(Sketcher.Constraint("Coincident", 12, 2, 13, 1))
sketch2.addConstraint(Sketcher.Constraint("Coincident", 13, 2, 14, 1))
sketch2.addConstraint(Sketcher.Constraint("Coincident", 14, 2, 15, 1))
sketch2.addConstraint(Sketcher.Constraint("Coincident", 15, 2, 16, 2))
sketch2.addConstraint(Sketcher.Constraint("Coincident", 17, 1, 18, 1))
sketch2.addConstraint(Sketcher.Constraint("Coincident", 18, 2, 19, 2))
sketch2.addConstraint(Sketcher.Constraint("Coincident", 20, 1, 21, 1))
sketch2.addConstraint(Sketcher.Constraint("Coincident", 21, 2, 11, 1))
sketch2.addConstraint(Sketcher.Constraint("Horizontal", 0))
sketch2.addConstraint(Sketcher.Constraint("Vertical", 1))
sketch2.addConstraint(Sketcher.Constraint("Horizontal", 2))
sketch2.addConstraint(Sketcher.Constraint("Horizontal", 5))
sketch2.addConstraint(Sketcher.Constraint("Horizontal", 9))
sketch2.addConstraint(Sketcher.Constraint("Vertical", 10))
sketch2.addConstraint(Sketcher.Constraint("Horizontal", 11))
sketch2.addConstraint(Sketcher.Constraint("Vertical", 12))
sketch2.addConstraint(Sketcher.Constraint("Horizontal", 13))
sketch2.addConstraint(Sketcher.Constraint("Vertical", 14))
sketch2.addConstraint(Sketcher.Constraint("Vertical", 21))
sketch2.addConstraint(Sketcher.Constraint("Vertical", 26))
sketch2.addConstraint(Sketcher.Constraint("Horizontal", 27))
sketch2.addConstraint(Sketcher.Constraint("Vertical", 28))
sketch2.addConstraint(Sketcher.Constraint("Horizontal", 29))
sketch2.addConstraint(Sketcher.Constraint("Vertical", 30))
sketch2.addConstraint(Sketcher.Constraint("Horizontal", 31))
sketch2.addConstraint(Sketcher.Constraint("Vertical", 32))
sketch2.addConstraint(Sketcher.Constraint("Horizontal", 33))
sketch2.addConstraint(Sketcher.Constraint("Vertical", 34))
sketch2.addConstraint(Sketcher.Constraint("Horizontal", 35))
sketch2.addConstraint(Sketcher.Constraint("Vertical", 36))
sketch2.addConstraint(Sketcher.Constraint("Horizontal", 37))
sketch2.addConstraint(Sketcher.Constraint("DistanceY", 12, 1, 12, 2, 9.280769))
sketch2.addConstraint(Sketcher.Constraint("DistanceY", 26, 1, 26, 2, 9.280769))
sketch2.addConstraint(Sketcher.Constraint("DistanceY", 30, 1, 30, 2, 13.025641))
sketch2.addConstraint(Sketcher.Constraint("DistanceY", 34, 1, 34, 2, 13.025641))
sketch2.addConstraint(Sketcher.Constraint("DistanceY", 32, 2, -1, 1, 66.2478))
sketch2.addConstraint(Sketcher.Constraint("DistanceY", 36, 2, -1, 1, 66.2478))
sketch2.addConstraint(Sketcher.Constraint("Distance", 15, 0.452909))
sketch2.addConstraint(Sketcher.Constraint("DistanceX", 0, 2, 0, 1, 2.872256))
sketch2.addConstraint(Sketcher.Constraint("DistanceX", 5, 1, 5, 2, 0.870072))
sketch2.addConstraint(Sketcher.Constraint("DistanceX", 11, 2, 11, 1, 1.953846))
sketch2.addConstraint(Sketcher.Constraint("DistanceX", 13, 1, 13, 2, 2.279487))
sketch2.addConstraint(Sketcher.Constraint("DistanceX", 27, 1, 27, 2, 2.279487))
sketch2.addConstraint(Sketcher.Constraint("DistanceX", 31, 1, 31, 2, 2.279487))
sketch2.addConstraint(Sketcher.Constraint("DistanceX", 35, 1, 35, 2, 2.279487))
sketch2.addConstraint(Sketcher.Constraint("DistanceY", 14, 2, 14, 1, 3.757592))
sketch2.addConstraint(Sketcher.Constraint("DistanceY", 26, 2, -1, 1, 53.222159))
sketch2.addConstraint(Sketcher.Constraint("DistanceX", -1, 1, 27, 2, 41.47518))
sketch2.addConstraint(Sketcher.Constraint("DistanceX", -1, 1, 34, 2, 47.66236))
sketch2.addConstraint(Sketcher.Constraint("DistanceX", 26, 2, 31, 2, 6.512821))
pocket1 = body.newObject("PartDesign::Pocket", "Pocket")
pocket1.Profile = sketch2
pocket1.Length = 150
pocket1.Reversed = True

doc.recompute()
